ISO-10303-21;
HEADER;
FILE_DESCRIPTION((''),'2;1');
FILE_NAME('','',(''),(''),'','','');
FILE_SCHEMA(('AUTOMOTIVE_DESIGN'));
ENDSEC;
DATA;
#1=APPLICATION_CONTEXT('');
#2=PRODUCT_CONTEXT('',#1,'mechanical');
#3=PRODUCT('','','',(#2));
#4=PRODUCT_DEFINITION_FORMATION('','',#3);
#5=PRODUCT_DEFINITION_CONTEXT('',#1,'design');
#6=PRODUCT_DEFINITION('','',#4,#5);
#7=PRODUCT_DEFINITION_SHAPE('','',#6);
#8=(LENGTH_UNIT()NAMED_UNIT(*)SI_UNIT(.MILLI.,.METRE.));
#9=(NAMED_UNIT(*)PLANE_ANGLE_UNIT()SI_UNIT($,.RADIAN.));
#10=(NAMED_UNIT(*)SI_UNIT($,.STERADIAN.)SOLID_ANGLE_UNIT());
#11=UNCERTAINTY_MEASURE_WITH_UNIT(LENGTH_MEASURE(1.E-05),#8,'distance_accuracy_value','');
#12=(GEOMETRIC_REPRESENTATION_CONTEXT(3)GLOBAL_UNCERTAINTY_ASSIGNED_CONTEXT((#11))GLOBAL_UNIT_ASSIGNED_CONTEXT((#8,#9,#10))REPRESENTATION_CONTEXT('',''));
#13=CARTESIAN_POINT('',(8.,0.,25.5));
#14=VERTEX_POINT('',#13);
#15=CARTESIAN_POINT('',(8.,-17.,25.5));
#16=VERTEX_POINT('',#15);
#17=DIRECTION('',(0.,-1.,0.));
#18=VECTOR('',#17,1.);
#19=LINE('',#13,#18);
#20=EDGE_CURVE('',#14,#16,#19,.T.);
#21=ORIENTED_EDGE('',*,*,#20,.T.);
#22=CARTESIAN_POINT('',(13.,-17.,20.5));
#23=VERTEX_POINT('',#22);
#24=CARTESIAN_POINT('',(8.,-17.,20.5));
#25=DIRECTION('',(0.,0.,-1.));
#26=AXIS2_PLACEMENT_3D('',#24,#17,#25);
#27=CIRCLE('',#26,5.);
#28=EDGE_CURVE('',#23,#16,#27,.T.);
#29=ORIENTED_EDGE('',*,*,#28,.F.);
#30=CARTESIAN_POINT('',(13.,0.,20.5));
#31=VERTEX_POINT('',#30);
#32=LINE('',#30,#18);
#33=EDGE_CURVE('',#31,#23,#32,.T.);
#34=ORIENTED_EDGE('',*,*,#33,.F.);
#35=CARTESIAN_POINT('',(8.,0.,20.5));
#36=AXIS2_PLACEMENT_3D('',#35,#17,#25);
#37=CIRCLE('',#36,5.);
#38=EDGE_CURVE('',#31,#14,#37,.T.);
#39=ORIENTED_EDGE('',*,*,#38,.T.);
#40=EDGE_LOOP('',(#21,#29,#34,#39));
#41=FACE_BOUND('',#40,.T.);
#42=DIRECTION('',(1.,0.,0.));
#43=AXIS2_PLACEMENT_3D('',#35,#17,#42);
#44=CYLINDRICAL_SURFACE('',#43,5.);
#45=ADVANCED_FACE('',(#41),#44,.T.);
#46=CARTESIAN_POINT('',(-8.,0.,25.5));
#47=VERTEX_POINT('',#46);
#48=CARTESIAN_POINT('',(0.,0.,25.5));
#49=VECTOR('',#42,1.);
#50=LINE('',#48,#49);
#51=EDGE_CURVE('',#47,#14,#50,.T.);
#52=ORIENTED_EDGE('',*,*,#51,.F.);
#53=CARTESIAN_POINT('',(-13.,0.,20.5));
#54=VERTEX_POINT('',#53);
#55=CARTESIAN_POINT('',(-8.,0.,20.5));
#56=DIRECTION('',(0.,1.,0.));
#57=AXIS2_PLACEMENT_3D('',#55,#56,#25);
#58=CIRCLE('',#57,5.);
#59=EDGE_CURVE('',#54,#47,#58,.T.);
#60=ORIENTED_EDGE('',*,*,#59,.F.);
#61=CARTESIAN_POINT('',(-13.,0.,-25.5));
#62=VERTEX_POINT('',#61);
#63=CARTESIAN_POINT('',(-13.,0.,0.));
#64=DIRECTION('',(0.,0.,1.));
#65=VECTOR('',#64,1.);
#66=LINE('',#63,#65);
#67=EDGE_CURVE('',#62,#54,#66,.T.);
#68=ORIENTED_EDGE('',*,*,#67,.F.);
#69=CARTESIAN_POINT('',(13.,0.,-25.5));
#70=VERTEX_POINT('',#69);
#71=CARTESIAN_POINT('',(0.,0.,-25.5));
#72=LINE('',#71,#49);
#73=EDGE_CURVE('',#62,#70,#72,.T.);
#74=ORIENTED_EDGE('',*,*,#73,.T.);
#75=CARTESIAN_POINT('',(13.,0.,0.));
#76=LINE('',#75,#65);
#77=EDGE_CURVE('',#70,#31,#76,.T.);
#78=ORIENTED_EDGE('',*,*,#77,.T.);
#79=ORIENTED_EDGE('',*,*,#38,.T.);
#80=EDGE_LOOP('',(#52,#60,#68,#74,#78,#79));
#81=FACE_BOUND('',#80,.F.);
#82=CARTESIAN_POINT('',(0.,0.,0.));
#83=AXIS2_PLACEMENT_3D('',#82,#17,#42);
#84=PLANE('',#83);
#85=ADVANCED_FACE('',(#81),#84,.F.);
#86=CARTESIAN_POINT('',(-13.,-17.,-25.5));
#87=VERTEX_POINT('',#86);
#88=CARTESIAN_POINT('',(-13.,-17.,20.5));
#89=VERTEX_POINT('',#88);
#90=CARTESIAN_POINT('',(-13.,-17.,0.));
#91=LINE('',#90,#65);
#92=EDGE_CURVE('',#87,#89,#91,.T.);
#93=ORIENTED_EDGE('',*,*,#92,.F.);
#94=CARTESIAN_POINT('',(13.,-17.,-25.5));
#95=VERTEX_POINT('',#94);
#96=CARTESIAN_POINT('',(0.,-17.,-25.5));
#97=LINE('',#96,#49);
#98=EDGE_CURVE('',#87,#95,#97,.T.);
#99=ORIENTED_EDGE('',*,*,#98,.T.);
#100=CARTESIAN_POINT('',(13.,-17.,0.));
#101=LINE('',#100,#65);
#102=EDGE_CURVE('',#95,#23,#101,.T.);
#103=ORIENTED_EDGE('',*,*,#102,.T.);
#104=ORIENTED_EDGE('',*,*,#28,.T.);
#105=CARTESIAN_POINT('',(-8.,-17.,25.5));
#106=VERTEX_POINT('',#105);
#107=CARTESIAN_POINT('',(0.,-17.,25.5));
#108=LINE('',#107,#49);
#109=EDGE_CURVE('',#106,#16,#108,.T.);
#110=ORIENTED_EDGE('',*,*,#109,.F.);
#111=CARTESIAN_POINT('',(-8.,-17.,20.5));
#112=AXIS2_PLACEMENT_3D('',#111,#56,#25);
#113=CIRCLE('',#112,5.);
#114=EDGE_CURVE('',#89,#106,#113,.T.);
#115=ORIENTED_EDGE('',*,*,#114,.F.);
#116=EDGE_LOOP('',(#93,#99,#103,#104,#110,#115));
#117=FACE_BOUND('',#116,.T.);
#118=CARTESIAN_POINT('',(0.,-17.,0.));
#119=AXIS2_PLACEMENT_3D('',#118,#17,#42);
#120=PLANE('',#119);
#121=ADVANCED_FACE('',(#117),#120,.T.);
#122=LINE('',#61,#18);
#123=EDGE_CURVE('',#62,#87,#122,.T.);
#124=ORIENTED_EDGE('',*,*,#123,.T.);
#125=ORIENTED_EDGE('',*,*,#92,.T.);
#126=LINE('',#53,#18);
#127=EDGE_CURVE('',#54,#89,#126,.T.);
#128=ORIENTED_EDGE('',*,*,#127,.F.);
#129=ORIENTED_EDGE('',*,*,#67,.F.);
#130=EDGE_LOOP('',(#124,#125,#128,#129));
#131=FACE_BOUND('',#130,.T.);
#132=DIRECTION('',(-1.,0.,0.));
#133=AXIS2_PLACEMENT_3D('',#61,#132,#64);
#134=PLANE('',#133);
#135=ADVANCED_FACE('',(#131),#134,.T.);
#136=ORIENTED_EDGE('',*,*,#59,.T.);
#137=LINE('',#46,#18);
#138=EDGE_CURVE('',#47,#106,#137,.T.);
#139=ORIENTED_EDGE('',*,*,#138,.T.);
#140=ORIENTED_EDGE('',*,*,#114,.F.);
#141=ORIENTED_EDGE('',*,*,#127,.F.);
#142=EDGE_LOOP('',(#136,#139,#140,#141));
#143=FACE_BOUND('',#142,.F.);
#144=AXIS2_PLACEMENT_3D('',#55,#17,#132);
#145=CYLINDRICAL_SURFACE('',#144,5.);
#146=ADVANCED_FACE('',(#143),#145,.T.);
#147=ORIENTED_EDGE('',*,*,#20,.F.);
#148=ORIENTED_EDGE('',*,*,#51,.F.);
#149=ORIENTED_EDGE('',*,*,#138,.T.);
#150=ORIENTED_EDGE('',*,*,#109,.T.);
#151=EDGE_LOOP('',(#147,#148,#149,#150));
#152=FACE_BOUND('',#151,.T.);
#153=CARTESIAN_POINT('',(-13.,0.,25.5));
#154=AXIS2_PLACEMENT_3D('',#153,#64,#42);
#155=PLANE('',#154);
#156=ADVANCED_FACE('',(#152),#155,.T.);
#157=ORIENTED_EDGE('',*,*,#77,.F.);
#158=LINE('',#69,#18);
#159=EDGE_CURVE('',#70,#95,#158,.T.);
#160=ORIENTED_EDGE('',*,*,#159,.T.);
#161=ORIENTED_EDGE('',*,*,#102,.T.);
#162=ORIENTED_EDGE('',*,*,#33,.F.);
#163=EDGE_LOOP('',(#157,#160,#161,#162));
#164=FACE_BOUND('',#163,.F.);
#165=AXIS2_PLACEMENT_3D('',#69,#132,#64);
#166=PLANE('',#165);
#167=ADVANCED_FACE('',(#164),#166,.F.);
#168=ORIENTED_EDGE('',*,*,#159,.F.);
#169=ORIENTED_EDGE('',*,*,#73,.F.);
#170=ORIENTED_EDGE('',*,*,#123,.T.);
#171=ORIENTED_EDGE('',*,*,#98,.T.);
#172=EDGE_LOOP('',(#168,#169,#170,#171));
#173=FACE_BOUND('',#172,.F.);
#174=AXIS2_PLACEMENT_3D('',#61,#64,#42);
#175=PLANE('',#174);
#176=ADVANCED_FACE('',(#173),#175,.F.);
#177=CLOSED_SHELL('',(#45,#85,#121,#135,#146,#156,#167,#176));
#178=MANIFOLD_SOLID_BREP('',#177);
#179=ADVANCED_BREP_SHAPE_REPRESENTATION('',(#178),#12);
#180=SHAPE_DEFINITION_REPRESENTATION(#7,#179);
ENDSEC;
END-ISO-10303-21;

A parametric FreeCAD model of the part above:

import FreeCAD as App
import Part
import Sketcher

V = App.Vector


def edges_at(feature, points):
    """Names of the edges that pass closest to the given points."""
    edges = feature.Shape.Edges
    near = lambda p: min(range(len(edges)), key=lambda i: edges[i].distToShape(Part.Vertex(*p))[0])
    return sorted({f"Edge{near(p) + 1}" for p in points})

doc = App.newDocument("Part")
params = doc.addObject("Spreadsheet::Sheet", "Params")
for row, (alias, value) in enumerate([
    ("sketch1_width", "26 mm"),
    ("sketch1_height", "51 mm"),
    ("pad1_length", "17 mm"),
    ("fillet_radius", "5 mm"),
], start=1):
    params.set(f"A{row}", alias)
    params.set(f"B{row}", "=" + value)
    params.setAlias(f"B{row}", alias)

body = doc.addObject("PartDesign::Body", "Body")

# Sketch on XZ plane
sketch1 = body.newObject("Sketcher::SketchObject", "Sketch")
sketch1.AttachmentSupport = (doc.getObject("XZ_Plane"), [""])
sketch1.MapMode = "FlatFace"
sketch1.addGeometry(Part.LineSegment(V(-13, 26, 0), V(-13, -26, 0)), False)
sketch1.addGeometry(Part.LineSegment(V(-13, -26, 0), V(13, -26, 0)), False)
sketch1.addGeometry(Part.LineSegment(V(13, -26, 0), V(13, 26, 0)), False)
sketch1.addGeometry(Part.LineSegment(V(13, 26, 0), V(-13, 26, 0)), False)
sketch1.addConstraint(Sketcher.Constraint("Coincident", 0, 2, 1, 1))
sketch1.addConstraint(Sketcher.Constraint("Coincident", 1, 2, 2, 1))
sketch1.addConstraint(Sketcher.Constraint("Coincident", 2, 2, 3, 1))
sketch1.addConstraint(Sketcher.Constraint("Coincident", 3, 2, 0, 1))
sketch1.addConstraint(Sketcher.Constraint("Vertical", 0))
sketch1.addConstraint(Sketcher.Constraint("Horizontal", 1))
sketch1.addConstraint(Sketcher.Constraint("Vertical", 2))
sketch1.addConstraint(Sketcher.Constraint("Horizontal", 3))
sketch1.addConstraint(Sketcher.Constraint("Symmetric", 0, 2, 2, 2, -1, 1))
sketch1.addConstraint(Sketcher.Constraint("DistanceX", 1, 1, 1, 2, 26.0))
sketch1.addConstraint(Sketcher.Constraint("DistanceY", 0, 2, 0, 1, 51.0))
sketch1.setExpression("Constraints[9]", "Params.sketch1_width")
sketch1.setExpression("Constraints[10]", "Params.sketch1_height")
pad1 = body.newObject("PartDesign::Pad", "Pad")
pad1.Profile = sketch1
pad1.setExpression("Length", "Params.pad1_length")
doc.recompute()

fillet = body.newObject("PartDesign::Fillet", "Fillet")
fillet.Base = (pad1, edges_at(pad1, [(13, -8.5, 25.5), (-13, -8.5, 25.5)]))
fillet.setExpression("Radius", "Params.fillet_radius")

doc.recompute()
